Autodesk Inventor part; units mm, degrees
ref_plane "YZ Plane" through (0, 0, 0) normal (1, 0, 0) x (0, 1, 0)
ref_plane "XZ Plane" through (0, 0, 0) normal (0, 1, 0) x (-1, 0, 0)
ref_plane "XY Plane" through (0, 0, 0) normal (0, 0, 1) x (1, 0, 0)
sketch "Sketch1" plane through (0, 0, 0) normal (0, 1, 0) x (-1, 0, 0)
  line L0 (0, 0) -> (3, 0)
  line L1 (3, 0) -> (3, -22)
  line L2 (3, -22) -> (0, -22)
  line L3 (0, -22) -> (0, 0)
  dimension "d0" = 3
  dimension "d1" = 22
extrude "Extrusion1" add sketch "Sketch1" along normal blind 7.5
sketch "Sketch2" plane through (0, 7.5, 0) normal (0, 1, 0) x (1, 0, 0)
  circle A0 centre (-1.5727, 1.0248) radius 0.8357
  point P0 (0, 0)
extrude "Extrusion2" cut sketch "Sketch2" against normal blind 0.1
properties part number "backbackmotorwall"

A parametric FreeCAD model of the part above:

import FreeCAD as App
import Part
import Sketcher

V = App.Vector
Q = App.Units.Quantity

doc = App.newDocument("Part")
params = doc.addObject("Spreadsheet::Sheet", "Params")
for row, (alias, value) in enumerate([
    ("sketch1_width", "3 mm"),
    ("sketch1_height", "22 mm"),
    ("pad1_length", "7.5 mm"),
    ("pocket1_length", "0.1 mm"),
], start=1):
    params.set(f"A{row}", alias)
    params.set(f"B{row}", "=" + value)
    params.setAlias(f"B{row}", alias)

body = doc.addObject("PartDesign::Body", "Body")

# Sketch on XZ plane
sketch1 = body.newObject("Sketcher::SketchObject", "Sketch")
sketch1.AttachmentSupport = (doc.getObject("XZ_Plane"), [""])
sketch1.MapMode = "FlatFace"
sketch1.addGeometry([
    Part.LineSegment(V(-3, 0, 0), V(0, 0, 0)),
    Part.LineSegment(V(0, 0, 0), V(0, -22, 0)),
    Part.LineSegment(V(0, -22, 0), V(-3, -22, 0)),
    Part.LineSegment(V(-3, -22, 0), V(-3, 0, 0)),
], False)
sketch1.addConstraint([
    Sketcher.Constraint("Coincident", 0, 2, 1, 1),
    Sketcher.Constraint("Coincident", 1, 2, 2, 1),
    Sketcher.Constraint("Coincident", 2, 2, 3, 1),
    Sketcher.Constraint("Coincident", 3, 2, 0, 1),
    Sketcher.Constraint("Horizontal", 0),
    Sketcher.Constraint("Vertical", 1),
    Sketcher.Constraint("Horizontal", 2),
    Sketcher.Constraint("Vertical", 3),
    Sketcher.Constraint("Coincident", 0, 2, -1, 1),
    Sketcher.Constraint("DistanceX", 0, 1, 0, 2, Q("3 mm")),
    Sketcher.Constraint("DistanceY", 1, 2, 1, 1, Q("22 mm")),
])
sketch1.setExpression("Constraints[9]", "Params.sketch1_width")
sketch1.setExpression("Constraints[10]", "Params.sketch1_height")
pad1 = body.newObject("PartDesign::Pad", "Pad")
pad1.Profile = sketch1
pad1.setExpression("Length", "Params.pad1_length")
pad1.Reversed = True

# Sketch on XZ plane
sketch2 = body.newObject("Sketcher::SketchObject", "Sketch001")
sketch2.AttachmentSupport = (doc.getObject("XZ_Plane"), [""])
sketch2.MapMode = "FlatFace"
sketch2.AttachmentOffset = App.Placement(V(0, 0, -7.5), App.Rotation())
sketch2.addGeometry(Part.Circle(V(-1.5727, -1.0248, 0), V(0, 0, 1), 0.8357), False)
sketch2.addConstraint([
    Sketcher.Constraint("Diameter", 0, Q("1.6714 mm")),
    Sketcher.Constraint("DistanceX", 0, 3, -1, 1, Q("1.5727 mm")),
    Sketcher.Constraint("DistanceY", 0, 3, -1, 1, Q("1.0248 mm")),
])
pocket1 = body.newObject("PartDesign::Pocket", "Pocket")
pocket1.Profile = sketch2
pocket1.setExpression("Length", "Params.pocket1_length")
pocket1.Reversed = True

doc.recompute()
